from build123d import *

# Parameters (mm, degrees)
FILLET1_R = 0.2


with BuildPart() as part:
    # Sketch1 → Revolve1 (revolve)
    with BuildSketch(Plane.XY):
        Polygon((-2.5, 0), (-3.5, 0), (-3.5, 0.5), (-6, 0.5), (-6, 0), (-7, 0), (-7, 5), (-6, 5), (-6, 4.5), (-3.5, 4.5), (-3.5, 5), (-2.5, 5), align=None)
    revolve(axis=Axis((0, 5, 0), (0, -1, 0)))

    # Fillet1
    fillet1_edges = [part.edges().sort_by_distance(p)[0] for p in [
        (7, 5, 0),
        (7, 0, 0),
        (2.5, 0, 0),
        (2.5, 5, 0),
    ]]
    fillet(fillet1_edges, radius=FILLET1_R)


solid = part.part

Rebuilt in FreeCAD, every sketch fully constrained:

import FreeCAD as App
import Part
import Sketcher
from FreeCAD import Vector
Q = App.Units.Quantity


def edges_at(feature, points):
    """Names of the edges that pass closest to the given points."""
    edges = feature.Shape.Edges
    near = lambda p: min(range(len(edges)), key=lambda i: edges[i].distToShape(Part.Vertex(*p))[0])
    return sorted({f"Edge{near(p) + 1}" for p in points})

doc = App.newDocument("Part")
params = doc.addObject("Spreadsheet::Sheet", "Params")
for row, (alias, value) in enumerate([
    ("sketch1_width", "1 mm"),
    ("sketch1_height", "5 mm"),
    ("sketch1_width2", "2.5 mm"),
    ("sketch1_height2", "0.5 mm"),
    ("revolution_angle", "360 deg"),
    ("fillet_radius", "0.2 mm"),
], start=1):
    params.set(f"A{row}", alias)
    params.set(f"B{row}", "=" + value)
    params.setAlias(f"B{row}", alias)

body = doc.addObject("PartDesign::Body", "Body")

# Sketch on XY plane
sketch1 = body.newObject("Sketcher::SketchObject", "Sketch")
sketch1.AttachmentSupport = (doc.getObject("XY_Plane"), [""])
sketch1.MapMode = "FlatFace"
sketch1.addGeometry(Part.LineSegment(Vector(-3.5, 0, 0), Vector(-2.5, 0, 0)), False)
sketch1.addGeometry(Part.LineSegment(Vector(-2.5, 0, 0), Vector(-2.5, 5, 0)), False)
sketch1.addGeometry(Part.LineSegment(Vector(-2.5, 5, 0), Vector(-3.5, 5, 0)), False)
sketch1.addGeometry(Part.LineSegment(Vector(-3.5, 5, 0), Vector(-3.5, 4.5, 0)), False)
sketch1.addGeometry(Part.LineSegment(Vector(-3.5, 4.5, 0), Vector(-6, 4.5, 0)), False)
sketch1.addGeometry(Part.LineSegment(Vector(-6, 4.5, 0), Vector(-6, 5, 0)), False)
sketch1.addGeometry(Part.LineSegment(Vector(-6, 5, 0), Vector(-7, 5, 0)), False)
sketch1.addGeometry(Part.LineSegment(Vector(-7, 5, 0), Vector(-7, 0, 0)), False)
sketch1.addGeometry(Part.LineSegment(Vector(-7, 0, 0), Vector(-6, 0, 0)), False)
sketch1.addGeometry(Part.LineSegment(Vector(-6, 0, 0), Vector(-6, 0.5, 0)), False)
sketch1.addGeometry(Part.LineSegment(Vector(-6, 0.5, 0), Vector(-3.5, 0.5, 0)), False)
sketch1.addGeometry(Part.LineSegment(Vector(-3.5, 0.5, 0), Vector(-3.5, 0, 0)), False)
sketch1.addConstraint(Sketcher.Constraint("Coincident", 0, 2, 1, 1))
sketch1.addConstraint(Sketcher.Constraint("Coincident", 1, 2, 2, 1))
sketch1.addConstraint(Sketcher.Constraint("Coincident", 2, 2, 3, 1))
sketch1.addConstraint(Sketcher.Constraint("Coincident", 3, 2, 4, 1))
sketch1.addConstraint(Sketcher.Constraint("Coincident", 4, 2, 5, 1))
sketch1.addConstraint(Sketcher.Constraint("Coincident", 5, 2, 6, 1))
sketch1.addConstraint(Sketcher.Constraint("Coincident", 6, 2, 7, 1))
sketch1.addConstraint(Sketcher.Constraint("Coincident", 7, 2, 8, 1))
sketch1.addConstraint(Sketcher.Constraint("Coincident", 8, 2, 9, 1))
sketch1.addConstraint(Sketcher.Constraint("Coincident", 9, 2, 10, 1))
sketch1.addConstraint(Sketcher.Constraint("Coincident", 10, 2, 11, 1))
sketch1.addConstraint(Sketcher.Constraint("Coincident", 11, 2, 0, 1))
sketch1.addConstraint(Sketcher.Constraint("Horizontal", 0))
sketch1.addConstraint(Sketcher.Constraint("Vertical", 1))
sketch1.addConstraint(Sketcher.Constraint("Horizontal", 2))
sketch1.addConstraint(Sketcher.Constraint("Vertical", 3))
sketch1.addConstraint(Sketcher.Constraint("Horizontal", 4))
sketch1.addConstraint(Sketcher.Constraint("Vertical", 5))
sketch1.addConstraint(Sketcher.Constraint("Horizontal", 6))
sketch1.addConstraint(Sketcher.Constraint("Vertical", 7))
sketch1.addConstraint(Sketcher.Constraint("Horizontal", 8))
sketch1.addConstraint(Sketcher.Constraint("Vertical", 9))
sketch1.addConstraint(Sketcher.Constraint("Horizontal", 10))
sketch1.addConstraint(Sketcher.Constraint("Vertical", 11))
sketch1.addConstraint(Sketcher.Constraint("PointOnObject", 0, 2, -1))
sketch1.addConstraint(Sketcher.Constraint("PointOnObject", 7, 2, -1))
sketch1.addConstraint(Sketcher.Constraint("Horizontal", 2, 2, 5, 2))
sketch1.addConstraint(Sketcher.Constraint("Vertical", 5, 2, 8, 2))
sketch1.addConstraint(Sketcher.Constraint("Vertical", 3, 2, 10, 2))
sketch1.addConstraint(Sketcher.Constraint("Equal", 2, 6))
sketch1.addConstraint(Sketcher.Constraint("Equal", 5, 9))
sketch1.addConstraint(Sketcher.Constraint("DistanceX", 0, 1, 0, 2, Q("1 mm")))
sketch1.addConstraint(Sketcher.Constraint("DistanceY", 1, 1, 1, 2, Q("5 mm")))
sketch1.addConstraint(Sketcher.Constraint("DistanceX", 4, 2, 4, 1, Q("2.5 mm")))
sketch1.addConstraint(Sketcher.Constraint("DistanceY", 3, 2, 3, 1, Q("0.5 mm")))
sketch1.addConstraint(Sketcher.Constraint("DistanceX", 4, 2, -1, 1, Q("6 mm")))
sketch1.setExpression("Constraints[31]", "Params.sketch1_width")
sketch1.setExpression("Constraints[32]", "Params.sketch1_height")
sketch1.setExpression("Constraints[33]", "Params.sketch1_width2")
sketch1.setExpression("Constraints[34]", "Params.sketch1_height2")
revolution = body.newObject("PartDesign::Revolution", "Revolution")
revolution.Profile = sketch1
revolution.ReferenceAxis = (sketch1, ["V_Axis"])
revolution.setExpression("Angle", "Params.revolution_angle")
doc.recompute()

fillet = body.newObject("PartDesign::Fillet", "Fillet")
fillet.Base = (revolution, edges_at(revolution, [
    (7, 5, 0),
    (7, 0, 0),
    (2.5, 0, 0),
    (2.5, 5, 0),
]))
fillet.setExpression("Radius", "Params.fillet_radius")

doc.recompute()
